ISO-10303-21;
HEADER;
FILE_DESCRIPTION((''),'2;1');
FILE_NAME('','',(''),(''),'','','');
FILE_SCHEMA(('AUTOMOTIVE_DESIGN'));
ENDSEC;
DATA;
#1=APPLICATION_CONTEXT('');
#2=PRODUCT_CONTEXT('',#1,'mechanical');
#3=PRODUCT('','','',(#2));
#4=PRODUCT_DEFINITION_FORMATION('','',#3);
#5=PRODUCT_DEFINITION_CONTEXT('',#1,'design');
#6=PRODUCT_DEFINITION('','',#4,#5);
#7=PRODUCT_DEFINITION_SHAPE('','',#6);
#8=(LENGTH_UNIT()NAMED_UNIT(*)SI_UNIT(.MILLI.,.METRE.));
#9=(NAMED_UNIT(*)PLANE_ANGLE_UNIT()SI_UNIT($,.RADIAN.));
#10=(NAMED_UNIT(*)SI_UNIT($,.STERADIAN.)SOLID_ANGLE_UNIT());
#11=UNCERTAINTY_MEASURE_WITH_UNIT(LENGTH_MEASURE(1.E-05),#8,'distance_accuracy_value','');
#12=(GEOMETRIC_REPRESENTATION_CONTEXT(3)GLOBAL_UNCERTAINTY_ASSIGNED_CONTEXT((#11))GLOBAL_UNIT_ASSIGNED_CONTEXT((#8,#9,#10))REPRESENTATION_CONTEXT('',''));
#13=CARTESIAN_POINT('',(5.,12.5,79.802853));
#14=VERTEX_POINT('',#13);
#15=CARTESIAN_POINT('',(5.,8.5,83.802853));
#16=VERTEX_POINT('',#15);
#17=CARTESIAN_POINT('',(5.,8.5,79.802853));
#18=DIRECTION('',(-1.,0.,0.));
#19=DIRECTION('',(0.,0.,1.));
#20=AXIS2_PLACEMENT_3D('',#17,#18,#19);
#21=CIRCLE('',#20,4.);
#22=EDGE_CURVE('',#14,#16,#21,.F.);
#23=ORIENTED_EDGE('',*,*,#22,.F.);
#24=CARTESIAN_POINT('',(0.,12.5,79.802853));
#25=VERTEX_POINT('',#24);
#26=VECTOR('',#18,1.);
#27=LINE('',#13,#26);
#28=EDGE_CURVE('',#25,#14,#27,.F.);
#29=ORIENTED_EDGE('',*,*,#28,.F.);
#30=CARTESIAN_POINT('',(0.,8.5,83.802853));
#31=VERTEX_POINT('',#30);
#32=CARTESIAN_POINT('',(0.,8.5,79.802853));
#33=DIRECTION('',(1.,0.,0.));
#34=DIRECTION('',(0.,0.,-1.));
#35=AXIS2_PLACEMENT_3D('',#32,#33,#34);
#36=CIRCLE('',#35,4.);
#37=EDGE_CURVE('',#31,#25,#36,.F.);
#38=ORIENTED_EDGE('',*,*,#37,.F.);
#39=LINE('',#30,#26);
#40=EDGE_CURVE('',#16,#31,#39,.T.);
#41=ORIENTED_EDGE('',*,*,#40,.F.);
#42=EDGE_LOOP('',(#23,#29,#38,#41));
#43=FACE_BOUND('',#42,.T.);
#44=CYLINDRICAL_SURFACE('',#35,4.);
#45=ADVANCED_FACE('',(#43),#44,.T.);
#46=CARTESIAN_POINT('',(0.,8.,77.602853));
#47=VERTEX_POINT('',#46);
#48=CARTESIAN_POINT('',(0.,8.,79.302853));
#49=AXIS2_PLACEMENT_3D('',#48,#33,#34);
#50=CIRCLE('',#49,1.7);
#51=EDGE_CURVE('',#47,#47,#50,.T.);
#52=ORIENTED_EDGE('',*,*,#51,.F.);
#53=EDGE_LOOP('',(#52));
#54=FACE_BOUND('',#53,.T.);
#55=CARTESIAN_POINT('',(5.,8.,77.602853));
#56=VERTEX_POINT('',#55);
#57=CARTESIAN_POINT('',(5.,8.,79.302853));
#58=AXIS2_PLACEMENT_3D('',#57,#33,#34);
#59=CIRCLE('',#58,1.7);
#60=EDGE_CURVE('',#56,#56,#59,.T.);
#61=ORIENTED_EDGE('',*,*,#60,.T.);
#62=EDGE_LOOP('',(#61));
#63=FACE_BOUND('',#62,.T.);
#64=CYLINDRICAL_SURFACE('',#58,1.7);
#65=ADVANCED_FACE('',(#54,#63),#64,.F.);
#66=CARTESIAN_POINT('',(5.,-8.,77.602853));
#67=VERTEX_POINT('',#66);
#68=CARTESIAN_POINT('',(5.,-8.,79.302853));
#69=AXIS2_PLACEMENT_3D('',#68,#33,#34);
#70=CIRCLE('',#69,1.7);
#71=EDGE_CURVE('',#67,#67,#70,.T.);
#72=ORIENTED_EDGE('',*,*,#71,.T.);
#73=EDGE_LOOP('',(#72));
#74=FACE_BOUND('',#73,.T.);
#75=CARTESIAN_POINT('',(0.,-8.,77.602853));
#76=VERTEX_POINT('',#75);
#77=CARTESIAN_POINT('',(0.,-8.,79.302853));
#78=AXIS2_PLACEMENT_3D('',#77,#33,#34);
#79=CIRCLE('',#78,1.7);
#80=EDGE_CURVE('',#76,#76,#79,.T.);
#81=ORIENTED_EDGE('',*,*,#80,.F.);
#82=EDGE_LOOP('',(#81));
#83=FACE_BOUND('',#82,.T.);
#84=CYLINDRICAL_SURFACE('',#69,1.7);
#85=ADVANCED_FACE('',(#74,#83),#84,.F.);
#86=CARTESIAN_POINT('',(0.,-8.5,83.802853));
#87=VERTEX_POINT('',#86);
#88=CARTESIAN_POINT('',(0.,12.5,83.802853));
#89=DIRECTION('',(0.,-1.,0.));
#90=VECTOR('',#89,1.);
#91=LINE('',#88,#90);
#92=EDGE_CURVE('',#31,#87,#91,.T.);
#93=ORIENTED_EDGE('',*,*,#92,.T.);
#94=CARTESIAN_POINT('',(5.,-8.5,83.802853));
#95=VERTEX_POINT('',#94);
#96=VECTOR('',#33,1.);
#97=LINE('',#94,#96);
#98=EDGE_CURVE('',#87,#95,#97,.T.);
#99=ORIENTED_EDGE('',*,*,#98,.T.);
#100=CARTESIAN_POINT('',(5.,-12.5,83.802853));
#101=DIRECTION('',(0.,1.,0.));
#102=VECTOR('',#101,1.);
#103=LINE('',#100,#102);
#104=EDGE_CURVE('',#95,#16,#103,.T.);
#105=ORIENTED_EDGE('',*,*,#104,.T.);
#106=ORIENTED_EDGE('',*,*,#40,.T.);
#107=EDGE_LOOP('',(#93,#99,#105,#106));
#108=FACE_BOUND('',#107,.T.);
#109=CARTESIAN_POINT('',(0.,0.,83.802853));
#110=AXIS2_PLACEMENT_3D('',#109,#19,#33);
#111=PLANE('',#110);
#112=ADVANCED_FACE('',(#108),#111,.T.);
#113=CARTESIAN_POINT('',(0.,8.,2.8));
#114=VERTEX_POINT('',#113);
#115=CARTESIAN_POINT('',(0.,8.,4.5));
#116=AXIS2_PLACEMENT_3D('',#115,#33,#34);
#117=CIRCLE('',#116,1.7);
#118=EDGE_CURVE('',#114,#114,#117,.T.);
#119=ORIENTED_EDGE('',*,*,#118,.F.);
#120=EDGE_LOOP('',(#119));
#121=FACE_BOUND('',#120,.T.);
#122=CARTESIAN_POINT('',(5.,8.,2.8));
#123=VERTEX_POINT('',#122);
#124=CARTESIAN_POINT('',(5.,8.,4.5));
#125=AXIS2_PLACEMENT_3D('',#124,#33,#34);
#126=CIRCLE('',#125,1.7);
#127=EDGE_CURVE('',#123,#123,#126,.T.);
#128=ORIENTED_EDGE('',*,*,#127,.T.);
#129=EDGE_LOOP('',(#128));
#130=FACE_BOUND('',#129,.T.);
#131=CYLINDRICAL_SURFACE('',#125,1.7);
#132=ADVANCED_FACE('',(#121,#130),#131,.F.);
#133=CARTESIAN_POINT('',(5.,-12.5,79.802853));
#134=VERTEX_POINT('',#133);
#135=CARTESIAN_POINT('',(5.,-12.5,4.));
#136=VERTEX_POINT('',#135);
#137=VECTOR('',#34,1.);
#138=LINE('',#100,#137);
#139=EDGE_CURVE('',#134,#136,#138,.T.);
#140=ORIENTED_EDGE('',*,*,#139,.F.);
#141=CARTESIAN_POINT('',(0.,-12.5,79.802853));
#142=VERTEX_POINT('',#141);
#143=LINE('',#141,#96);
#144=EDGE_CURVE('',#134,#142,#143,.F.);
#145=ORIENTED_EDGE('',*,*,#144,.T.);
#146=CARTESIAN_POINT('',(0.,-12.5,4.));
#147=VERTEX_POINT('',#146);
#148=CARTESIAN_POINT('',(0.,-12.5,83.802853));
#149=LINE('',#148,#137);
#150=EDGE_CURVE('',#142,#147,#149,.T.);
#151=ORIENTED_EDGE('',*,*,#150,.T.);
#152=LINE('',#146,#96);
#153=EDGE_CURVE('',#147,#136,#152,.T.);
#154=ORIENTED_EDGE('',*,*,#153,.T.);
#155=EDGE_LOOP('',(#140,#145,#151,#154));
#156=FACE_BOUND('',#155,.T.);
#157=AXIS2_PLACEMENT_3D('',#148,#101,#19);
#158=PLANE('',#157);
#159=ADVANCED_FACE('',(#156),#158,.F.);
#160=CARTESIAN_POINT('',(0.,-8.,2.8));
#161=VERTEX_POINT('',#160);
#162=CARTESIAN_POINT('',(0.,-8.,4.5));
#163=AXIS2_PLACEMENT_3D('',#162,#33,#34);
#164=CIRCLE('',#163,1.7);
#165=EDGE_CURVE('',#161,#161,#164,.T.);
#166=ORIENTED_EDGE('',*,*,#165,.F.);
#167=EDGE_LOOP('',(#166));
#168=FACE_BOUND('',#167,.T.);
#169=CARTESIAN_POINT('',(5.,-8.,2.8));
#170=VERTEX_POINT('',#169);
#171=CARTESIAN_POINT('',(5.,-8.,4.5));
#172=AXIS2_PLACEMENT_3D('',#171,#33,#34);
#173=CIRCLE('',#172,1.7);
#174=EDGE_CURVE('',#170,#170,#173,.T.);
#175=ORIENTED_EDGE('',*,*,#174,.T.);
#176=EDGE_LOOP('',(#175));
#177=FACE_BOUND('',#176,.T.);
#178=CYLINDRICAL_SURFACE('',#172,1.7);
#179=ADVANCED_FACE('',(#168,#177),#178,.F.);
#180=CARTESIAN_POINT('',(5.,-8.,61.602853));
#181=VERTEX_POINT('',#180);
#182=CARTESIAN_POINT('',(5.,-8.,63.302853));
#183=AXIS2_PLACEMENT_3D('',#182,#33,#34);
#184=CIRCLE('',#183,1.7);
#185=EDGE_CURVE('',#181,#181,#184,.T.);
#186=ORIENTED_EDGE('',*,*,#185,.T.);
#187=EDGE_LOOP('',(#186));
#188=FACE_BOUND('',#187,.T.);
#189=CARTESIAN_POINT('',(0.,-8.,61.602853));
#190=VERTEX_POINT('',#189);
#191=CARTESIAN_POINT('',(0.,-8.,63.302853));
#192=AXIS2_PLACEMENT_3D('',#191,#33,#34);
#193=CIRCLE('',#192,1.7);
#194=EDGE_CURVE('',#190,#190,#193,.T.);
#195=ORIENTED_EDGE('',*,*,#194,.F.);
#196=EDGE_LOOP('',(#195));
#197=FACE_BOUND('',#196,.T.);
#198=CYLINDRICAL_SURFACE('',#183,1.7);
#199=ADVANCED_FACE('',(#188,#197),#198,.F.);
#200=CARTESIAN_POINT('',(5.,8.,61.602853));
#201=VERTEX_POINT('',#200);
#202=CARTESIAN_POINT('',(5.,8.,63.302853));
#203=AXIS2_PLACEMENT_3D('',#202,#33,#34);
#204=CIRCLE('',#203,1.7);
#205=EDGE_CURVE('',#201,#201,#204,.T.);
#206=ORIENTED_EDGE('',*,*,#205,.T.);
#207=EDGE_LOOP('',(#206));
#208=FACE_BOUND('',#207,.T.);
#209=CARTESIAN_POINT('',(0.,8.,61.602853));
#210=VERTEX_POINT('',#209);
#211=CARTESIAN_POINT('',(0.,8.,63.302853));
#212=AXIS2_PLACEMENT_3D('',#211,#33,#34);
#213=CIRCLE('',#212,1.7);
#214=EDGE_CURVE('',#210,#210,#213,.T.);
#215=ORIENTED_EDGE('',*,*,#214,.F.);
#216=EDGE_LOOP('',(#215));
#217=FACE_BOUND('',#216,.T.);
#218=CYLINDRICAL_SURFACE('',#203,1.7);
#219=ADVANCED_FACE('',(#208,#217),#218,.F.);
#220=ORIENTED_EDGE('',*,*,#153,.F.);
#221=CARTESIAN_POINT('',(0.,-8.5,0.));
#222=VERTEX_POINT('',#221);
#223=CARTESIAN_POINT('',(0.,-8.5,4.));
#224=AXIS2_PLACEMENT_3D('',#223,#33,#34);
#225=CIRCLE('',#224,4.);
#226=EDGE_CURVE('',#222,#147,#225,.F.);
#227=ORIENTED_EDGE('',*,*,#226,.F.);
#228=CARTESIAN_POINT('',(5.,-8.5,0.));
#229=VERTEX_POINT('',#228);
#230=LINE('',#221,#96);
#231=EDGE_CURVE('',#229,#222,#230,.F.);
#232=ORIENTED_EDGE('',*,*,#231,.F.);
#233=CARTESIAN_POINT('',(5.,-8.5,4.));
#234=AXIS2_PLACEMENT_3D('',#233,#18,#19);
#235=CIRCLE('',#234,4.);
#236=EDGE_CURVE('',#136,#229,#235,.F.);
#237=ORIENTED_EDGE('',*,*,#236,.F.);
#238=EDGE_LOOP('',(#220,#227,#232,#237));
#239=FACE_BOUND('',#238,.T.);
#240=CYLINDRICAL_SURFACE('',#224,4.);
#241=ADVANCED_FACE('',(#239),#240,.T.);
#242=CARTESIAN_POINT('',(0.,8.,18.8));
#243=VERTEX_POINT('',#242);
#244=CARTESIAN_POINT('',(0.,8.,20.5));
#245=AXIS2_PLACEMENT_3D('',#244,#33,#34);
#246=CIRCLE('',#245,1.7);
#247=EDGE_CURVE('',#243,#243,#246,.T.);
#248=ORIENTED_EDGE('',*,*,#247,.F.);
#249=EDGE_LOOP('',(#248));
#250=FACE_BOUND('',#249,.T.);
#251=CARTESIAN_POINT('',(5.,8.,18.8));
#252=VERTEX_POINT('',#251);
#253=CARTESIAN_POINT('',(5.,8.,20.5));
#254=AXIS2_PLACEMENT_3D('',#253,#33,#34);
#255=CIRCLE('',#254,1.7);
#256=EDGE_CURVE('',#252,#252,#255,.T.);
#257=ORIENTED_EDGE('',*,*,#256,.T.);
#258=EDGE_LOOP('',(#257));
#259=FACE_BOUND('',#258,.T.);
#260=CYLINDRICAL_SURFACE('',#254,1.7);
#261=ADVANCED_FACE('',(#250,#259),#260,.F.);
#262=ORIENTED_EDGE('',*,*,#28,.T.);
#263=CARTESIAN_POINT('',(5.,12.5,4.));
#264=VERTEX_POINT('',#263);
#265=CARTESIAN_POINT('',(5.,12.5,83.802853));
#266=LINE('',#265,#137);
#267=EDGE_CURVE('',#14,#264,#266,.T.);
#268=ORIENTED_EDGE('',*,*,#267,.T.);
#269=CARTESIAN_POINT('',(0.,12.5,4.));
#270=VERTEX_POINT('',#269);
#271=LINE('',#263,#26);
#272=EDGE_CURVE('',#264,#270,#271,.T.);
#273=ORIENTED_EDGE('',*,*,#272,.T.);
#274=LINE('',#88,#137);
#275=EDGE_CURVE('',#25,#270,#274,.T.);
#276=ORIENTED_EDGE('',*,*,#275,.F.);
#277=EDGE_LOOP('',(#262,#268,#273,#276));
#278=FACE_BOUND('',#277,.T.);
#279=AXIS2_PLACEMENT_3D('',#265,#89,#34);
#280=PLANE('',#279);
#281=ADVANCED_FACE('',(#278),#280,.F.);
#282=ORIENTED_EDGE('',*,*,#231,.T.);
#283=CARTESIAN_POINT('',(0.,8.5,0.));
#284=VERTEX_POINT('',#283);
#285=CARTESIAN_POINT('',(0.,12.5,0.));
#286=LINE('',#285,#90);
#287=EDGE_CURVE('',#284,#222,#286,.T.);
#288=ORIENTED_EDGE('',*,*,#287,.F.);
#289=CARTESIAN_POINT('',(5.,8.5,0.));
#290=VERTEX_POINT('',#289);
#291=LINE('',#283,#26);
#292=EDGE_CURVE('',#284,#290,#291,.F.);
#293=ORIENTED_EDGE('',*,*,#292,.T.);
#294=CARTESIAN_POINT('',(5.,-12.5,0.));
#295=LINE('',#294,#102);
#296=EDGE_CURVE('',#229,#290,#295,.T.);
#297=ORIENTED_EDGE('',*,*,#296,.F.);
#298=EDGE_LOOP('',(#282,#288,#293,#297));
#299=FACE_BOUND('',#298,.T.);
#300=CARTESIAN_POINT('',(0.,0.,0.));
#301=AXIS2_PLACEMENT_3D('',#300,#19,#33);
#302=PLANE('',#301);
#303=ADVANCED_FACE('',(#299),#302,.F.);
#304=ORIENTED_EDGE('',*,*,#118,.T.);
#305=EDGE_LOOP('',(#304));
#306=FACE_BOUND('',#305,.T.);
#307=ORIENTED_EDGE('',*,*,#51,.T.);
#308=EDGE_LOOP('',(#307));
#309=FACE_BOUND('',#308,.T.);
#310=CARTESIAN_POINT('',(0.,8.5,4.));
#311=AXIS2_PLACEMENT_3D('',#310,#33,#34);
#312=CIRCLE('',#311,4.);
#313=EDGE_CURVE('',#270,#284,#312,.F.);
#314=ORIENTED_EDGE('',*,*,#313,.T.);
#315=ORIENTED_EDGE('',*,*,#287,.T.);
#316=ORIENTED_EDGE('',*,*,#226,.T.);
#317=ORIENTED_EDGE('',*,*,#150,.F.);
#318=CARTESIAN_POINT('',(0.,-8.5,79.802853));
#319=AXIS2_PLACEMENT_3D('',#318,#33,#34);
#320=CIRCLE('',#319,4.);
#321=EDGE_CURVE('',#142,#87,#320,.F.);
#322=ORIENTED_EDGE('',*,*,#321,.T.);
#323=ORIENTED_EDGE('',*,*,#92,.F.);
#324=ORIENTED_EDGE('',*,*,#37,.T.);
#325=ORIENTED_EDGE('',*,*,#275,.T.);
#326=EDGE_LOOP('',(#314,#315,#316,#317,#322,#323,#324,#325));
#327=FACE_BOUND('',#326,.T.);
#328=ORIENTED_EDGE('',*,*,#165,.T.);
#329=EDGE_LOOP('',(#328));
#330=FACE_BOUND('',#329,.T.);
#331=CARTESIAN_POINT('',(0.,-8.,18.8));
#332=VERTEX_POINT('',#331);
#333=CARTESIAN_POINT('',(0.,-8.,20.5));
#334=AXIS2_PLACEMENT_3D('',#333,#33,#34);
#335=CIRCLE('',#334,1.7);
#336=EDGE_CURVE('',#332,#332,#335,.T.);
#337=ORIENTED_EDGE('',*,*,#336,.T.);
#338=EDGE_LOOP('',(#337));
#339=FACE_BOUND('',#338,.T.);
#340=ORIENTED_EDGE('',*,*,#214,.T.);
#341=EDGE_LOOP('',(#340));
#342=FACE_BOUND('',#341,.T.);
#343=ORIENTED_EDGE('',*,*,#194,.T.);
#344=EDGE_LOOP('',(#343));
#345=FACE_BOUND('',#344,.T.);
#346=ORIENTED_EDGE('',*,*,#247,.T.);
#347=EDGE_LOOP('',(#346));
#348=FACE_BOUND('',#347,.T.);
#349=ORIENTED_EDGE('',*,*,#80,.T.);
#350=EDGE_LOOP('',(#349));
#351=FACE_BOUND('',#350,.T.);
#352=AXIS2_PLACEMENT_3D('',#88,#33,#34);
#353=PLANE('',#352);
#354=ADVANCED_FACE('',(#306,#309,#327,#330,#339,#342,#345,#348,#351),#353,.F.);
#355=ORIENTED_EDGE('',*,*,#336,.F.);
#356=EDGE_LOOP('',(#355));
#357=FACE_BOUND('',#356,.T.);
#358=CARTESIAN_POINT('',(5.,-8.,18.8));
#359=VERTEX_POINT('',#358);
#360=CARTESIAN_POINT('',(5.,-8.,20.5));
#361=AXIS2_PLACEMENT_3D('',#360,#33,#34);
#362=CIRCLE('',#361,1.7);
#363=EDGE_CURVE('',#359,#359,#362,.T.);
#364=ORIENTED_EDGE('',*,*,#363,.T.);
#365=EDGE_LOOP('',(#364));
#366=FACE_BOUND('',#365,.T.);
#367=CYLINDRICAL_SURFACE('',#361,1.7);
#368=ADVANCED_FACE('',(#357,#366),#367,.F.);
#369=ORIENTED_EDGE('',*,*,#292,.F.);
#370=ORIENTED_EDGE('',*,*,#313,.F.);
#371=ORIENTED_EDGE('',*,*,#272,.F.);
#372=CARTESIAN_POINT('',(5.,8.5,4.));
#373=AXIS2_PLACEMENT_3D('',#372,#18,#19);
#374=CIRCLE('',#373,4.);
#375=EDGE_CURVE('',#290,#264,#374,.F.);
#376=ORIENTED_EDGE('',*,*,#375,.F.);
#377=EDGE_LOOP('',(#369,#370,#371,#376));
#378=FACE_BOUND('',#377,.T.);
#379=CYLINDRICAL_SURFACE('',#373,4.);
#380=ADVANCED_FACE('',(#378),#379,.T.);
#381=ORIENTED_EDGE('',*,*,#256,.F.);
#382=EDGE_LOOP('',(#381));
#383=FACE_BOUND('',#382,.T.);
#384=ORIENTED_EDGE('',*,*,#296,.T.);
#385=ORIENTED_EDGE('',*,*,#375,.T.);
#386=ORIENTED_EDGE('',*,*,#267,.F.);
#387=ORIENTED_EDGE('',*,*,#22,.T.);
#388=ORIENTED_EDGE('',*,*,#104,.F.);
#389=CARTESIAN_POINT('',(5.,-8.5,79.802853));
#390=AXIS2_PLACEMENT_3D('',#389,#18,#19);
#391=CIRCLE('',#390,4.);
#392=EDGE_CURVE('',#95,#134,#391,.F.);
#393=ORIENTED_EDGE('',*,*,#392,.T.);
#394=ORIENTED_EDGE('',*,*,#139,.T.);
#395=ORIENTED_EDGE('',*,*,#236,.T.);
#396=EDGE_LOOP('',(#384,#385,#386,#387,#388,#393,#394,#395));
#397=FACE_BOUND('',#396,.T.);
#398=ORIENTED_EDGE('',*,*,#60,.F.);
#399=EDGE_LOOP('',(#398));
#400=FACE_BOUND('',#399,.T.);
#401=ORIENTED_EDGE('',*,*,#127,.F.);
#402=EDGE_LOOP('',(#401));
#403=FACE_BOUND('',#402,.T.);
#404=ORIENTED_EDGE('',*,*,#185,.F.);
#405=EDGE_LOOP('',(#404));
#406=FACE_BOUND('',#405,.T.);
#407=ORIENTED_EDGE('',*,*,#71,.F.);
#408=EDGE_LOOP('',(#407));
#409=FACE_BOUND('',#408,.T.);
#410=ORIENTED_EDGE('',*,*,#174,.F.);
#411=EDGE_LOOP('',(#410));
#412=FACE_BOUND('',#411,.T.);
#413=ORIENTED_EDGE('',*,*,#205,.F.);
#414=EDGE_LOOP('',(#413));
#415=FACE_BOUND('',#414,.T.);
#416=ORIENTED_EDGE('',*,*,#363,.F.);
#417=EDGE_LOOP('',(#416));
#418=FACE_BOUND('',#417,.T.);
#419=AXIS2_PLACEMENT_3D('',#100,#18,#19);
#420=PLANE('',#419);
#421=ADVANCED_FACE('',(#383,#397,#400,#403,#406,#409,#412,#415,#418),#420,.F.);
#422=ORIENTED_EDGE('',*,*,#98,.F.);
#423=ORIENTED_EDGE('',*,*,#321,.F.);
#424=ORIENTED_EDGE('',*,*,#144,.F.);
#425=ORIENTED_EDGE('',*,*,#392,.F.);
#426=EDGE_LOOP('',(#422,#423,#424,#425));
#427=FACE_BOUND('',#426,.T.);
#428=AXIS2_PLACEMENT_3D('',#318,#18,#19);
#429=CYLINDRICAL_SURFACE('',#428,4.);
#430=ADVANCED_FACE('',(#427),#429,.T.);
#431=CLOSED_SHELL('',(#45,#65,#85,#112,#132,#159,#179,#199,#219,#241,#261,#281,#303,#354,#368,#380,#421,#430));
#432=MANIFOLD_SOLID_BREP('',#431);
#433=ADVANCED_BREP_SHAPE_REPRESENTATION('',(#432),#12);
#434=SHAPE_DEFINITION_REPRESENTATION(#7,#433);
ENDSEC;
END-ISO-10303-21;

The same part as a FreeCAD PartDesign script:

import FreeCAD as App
import Part
import Sketcher


def edges_at(feature, points):
    """Names of the edges that pass closest to the given points."""
    edges = feature.Shape.Edges
    near = lambda p: min(range(len(edges)), key=lambda i: edges[i].distToShape(Part.Vertex(*p))[0])
    return sorted({f"Edge{near(p) + 1}" for p in points})

doc = App.newDocument("Part")
body = doc.addObject("PartDesign::Body", "Body")

sketch1 = body.newObject("Sketcher::SketchObject", "Sketch")
sketch1.AttachmentSupport = (doc.getObject("XY_Plane"), [""])
sketch1.MapMode = "FlatFace"
sketch1.addGeometry(Part.LineSegment(App.Vector(0, 12, 0), App.Vector(0, -12, 0)), False)
sketch1.addGeometry(Part.LineSegment(App.Vector(0, -12, 0), App.Vector(5, -12, 0)), False)
sketch1.addGeometry(Part.LineSegment(App.Vector(5, -12, 0), App.Vector(5, 12, 0)), False)
sketch1.addGeometry(Part.LineSegment(App.Vector(5, 12, 0), App.Vector(0, 12, 0)), False)
sketch1.addConstraint(Sketcher.Constraint("Coincident", 0, 2, 1, 1))
sketch1.addConstraint(Sketcher.Constraint("Coincident", 1, 2, 2, 1))
sketch1.addConstraint(Sketcher.Constraint("Coincident", 2, 2, 3, 1))
sketch1.addConstraint(Sketcher.Constraint("Coincident", 3, 2, 0, 1))
sketch1.addConstraint(Sketcher.Constraint("Vertical", 0))
sketch1.addConstraint(Sketcher.Constraint("Horizontal", 1))
sketch1.addConstraint(Sketcher.Constraint("Vertical", 2))
sketch1.addConstraint(Sketcher.Constraint("Horizontal", 3))
sketch1.addConstraint(Sketcher.Constraint("Symmetric", 0, 2, 3, 2, -1, 1))
sketch1.addConstraint(Sketcher.Constraint("DistanceX", 1, 1, 1, 2, 5.0))
sketch1.addConstraint(Sketcher.Constraint("DistanceY", 0, 2, 0, 1, 25.0))
pad1 = body.newObject("PartDesign::Pad", "Pad")
pad1.Profile = sketch1
pad1.Length = 83.802853
doc.recompute()

fillet = body.newObject("PartDesign::Fillet", "Fillet")
fillet.Base = (pad1, edges_at(pad1, [
    (2.5, -12.5, 83.803),
    (2.5, 12.5, 83.803),
    (2.5, -12.5, 0),
    (2.5, 12.5, 0),
]))
fillet.Radius = 4

sketch2 = body.newObject("Sketcher::SketchObject", "Sketch001")
sketch2.AttachmentSupport = (doc.getObject("YZ_Plane"), [""])
sketch2.MapMode = "FlatFace"
sketch2.AttachmentOffset = App.Placement(App.Vector(0, 0, 5), App.Rotation())
sketch2.addGeometry(Part.Circle(App.Vector(-8, 4.5, 0), App.Vector(0, 0, 1), 1.7), False)
sketch2.addGeometry(Part.Circle(App.Vector(8, 4.5, 0), App.Vector(0, 0, 1), 1.7), False)
sketch2.addGeometry(Part.Circle(App.Vector(8, 20.5, 0), App.Vector(0, 0, 1), 1.7), False)
sketch2.addGeometry(Part.Circle(App.Vector(8, 63.3, 0), App.Vector(0, 0, 1), 1.7), False)
sketch2.addGeometry(Part.Circle(App.Vector(8, 79.3, 0), App.Vector(0, 0, 1), 1.7), False)
sketch2.addGeometry(Part.Circle(App.Vector(-8, 79.3, 0), App.Vector(0, 0, 1), 1.7), False)
sketch2.addGeometry(Part.Circle(App.Vector(-8, 63.3, 0), App.Vector(0, 0, 1), 1.7), False)
sketch2.addGeometry(Part.Circle(App.Vector(-8, 20.5, 0), App.Vector(0, 0, 1), 1.7), False)
sketch2.addConstraint(Sketcher.Constraint("Equal", 0, 1))
sketch2.addConstraint(Sketcher.Constraint("Equal", 1, 2))
sketch2.addConstraint(Sketcher.Constraint("Equal", 2, 3))
sketch2.addConstraint(Sketcher.Constraint("Equal", 3, 4))
sketch2.addConstraint(Sketcher.Constraint("Equal", 4, 5))
sketch2.addConstraint(Sketcher.Constraint("Equal", 5, 6))
sketch2.addConstraint(Sketcher.Constraint("Equal", 6, 7))
sketch2.addConstraint(Sketcher.Constraint("Symmetric", 0, 3, 1, 3, -2))
sketch2.addConstraint(Sketcher.Constraint("Symmetric", 4, 3, 5, 3, -2))
sketch2.addConstraint(Sketcher.Constraint("Symmetric", 3, 3, 6, 3, -2))
sketch2.addConstraint(Sketcher.Constraint("Symmetric", 2, 3, 7, 3, -2))
sketch2.addConstraint(Sketcher.Constraint("Vertical", 1, 3, 2, 3))
sketch2.addConstraint(Sketcher.Constraint("Vertical", 2, 3, 3, 3))
sketch2.addConstraint(Sketcher.Constraint("Vertical", 3, 3, 4, 3))
sketch2.addConstraint(Sketcher.Constraint("Diameter", 0, 3.4))
sketch2.addConstraint(Sketcher.Constraint("DistanceX", 0, 3, -1, 1, 8.0))
sketch2.addConstraint(Sketcher.Constraint("DistanceY", 1, 3, 2, 3, 16.0))
sketch2.addConstraint(Sketcher.Constraint("DistanceY", 3, 3, 4, 3, 16.0))
sketch2.addConstraint(Sketcher.Constraint("DistanceY", -1, 1, 0, 3, 4.5))
sketch2.addConstraint(Sketcher.Constraint("DistanceY", -1, 1, 3, 3, 63.302853))
doc.recompute()
hole = body.newObject("PartDesign::Hole", "Hole")
hole.Profile = sketch2
hole.ThreadType = "None"
hole.Diameter = 3.4
hole.DepthType = "ThroughAll"

doc.recompute()
